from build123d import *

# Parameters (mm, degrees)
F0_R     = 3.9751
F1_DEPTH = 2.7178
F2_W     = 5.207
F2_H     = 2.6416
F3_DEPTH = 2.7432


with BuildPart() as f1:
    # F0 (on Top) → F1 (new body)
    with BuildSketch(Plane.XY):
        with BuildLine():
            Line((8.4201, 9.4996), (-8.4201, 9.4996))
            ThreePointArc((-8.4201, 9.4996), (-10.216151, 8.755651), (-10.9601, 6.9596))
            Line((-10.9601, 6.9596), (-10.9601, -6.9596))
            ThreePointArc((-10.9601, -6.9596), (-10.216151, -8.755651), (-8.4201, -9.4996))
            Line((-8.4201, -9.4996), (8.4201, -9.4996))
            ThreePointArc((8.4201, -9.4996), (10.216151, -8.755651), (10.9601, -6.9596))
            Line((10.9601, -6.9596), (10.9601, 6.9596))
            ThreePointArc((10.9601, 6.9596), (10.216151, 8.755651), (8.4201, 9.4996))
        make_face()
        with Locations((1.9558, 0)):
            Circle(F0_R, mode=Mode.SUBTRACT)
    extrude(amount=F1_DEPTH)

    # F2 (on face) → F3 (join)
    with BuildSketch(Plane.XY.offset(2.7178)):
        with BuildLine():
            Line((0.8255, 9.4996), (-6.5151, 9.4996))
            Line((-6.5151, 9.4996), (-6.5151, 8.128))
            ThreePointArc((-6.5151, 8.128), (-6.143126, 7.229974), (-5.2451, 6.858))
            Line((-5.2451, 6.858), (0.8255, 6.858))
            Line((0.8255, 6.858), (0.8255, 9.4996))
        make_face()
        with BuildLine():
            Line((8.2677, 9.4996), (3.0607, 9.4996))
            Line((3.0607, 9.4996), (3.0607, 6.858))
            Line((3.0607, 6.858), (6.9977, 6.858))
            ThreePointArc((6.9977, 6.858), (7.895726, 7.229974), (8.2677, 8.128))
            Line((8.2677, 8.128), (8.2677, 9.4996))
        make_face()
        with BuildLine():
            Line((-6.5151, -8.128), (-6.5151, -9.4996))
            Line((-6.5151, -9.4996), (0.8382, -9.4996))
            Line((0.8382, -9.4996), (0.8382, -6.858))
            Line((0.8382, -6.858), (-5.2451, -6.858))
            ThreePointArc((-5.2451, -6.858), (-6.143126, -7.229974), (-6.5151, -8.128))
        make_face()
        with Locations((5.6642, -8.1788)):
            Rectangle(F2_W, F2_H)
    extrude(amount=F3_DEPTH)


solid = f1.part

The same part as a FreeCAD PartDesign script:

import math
import FreeCAD as App
import Part
import Sketcher
Q = App.Units.Quantity

doc = App.newDocument("Part")
body = doc.addObject("PartDesign::Body", "Body")

sketch1 = body.newObject("Sketcher::SketchObject", "Sketch")
sketch1.AttachmentSupport = (doc.getObject("XY_Plane"), [""])
sketch1.MapMode = "FlatFace"
sketch1.addGeometry(Part.LineSegment(App.Vector(8.4, 9.5, 0), App.Vector(-8.4, 9.5, 0)), False)
sketch1.addGeometry(Part.ArcOfCircle(Part.Circle(App.Vector(-8.4, 7, 0), App.Vector(0, 0, 1), 2.5), math.radians(90), math.radians(180)), False)
sketch1.addGeometry(Part.LineSegment(App.Vector(-11, 7, 0), App.Vector(-11, -7, 0)), False)
sketch1.addGeometry(Part.ArcOfCircle(Part.Circle(App.Vector(-8.4, -7, 0), App.Vector(0, 0, 1), 2.5), math.radians(-180), math.radians(-90)), False)
sketch1.addGeometry(Part.LineSegment(App.Vector(-8.4, -9.5, 0), App.Vector(8.4, -9.5, 0)), False)
sketch1.addGeometry(Part.ArcOfCircle(Part.Circle(App.Vector(8.4, -7, 0), App.Vector(0, 0, 1), 2.5), math.radians(-90), math.radians(0)), False)
sketch1.addGeometry(Part.LineSegment(App.Vector(11, -7, 0), App.Vector(11, 7, 0)), False)
sketch1.addGeometry(Part.ArcOfCircle(Part.Circle(App.Vector(8.4, 7, 0), App.Vector(0, 0, 1), 2.5), math.radians(0), math.radians(90)), False)
sketch1.addGeometry(Part.Circle(App.Vector(2, 0, 0), App.Vector(0, 0, 1), 4), False)
sketch1.addConstraint(Sketcher.Constraint("Tangent", 0, 2, 1, 1))
sketch1.addConstraint(Sketcher.Constraint("Tangent", 1, 2, 2, 1))
sketch1.addConstraint(Sketcher.Constraint("Tangent", 2, 2, 3, 1))
sketch1.addConstraint(Sketcher.Constraint("Tangent", 3, 2, 4, 1))
sketch1.addConstraint(Sketcher.Constraint("Tangent", 4, 2, 5, 1))
sketch1.addConstraint(Sketcher.Constraint("Tangent", 5, 2, 6, 1))
sketch1.addConstraint(Sketcher.Constraint("Tangent", 6, 2, 7, 1))
sketch1.addConstraint(Sketcher.Constraint("Tangent", 7, 2, 0, 1))
sketch1.addConstraint(Sketcher.Constraint("Horizontal", 0))
sketch1.addConstraint(Sketcher.Constraint("Vertical", 2))
sketch1.addConstraint(Sketcher.Constraint("Horizontal", 4))
sketch1.addConstraint(Sketcher.Constraint("Vertical", 6))
sketch1.addConstraint(Sketcher.Constraint("Equal", 1, 3))
sketch1.addConstraint(Sketcher.Constraint("Equal", 3, 5))
sketch1.addConstraint(Sketcher.Constraint("Equal", 5, 7))
sketch1.addConstraint(Sketcher.Constraint("Symmetric", 1, 3, 5, 3, -1, 1))
sketch1.addConstraint(Sketcher.Constraint("PointOnObject", 8, 3, -1))
sketch1.addConstraint(Sketcher.Constraint("Radius", 1, Q("0.1 in")))
sketch1.addConstraint(Sketcher.Constraint("Diameter", 8, Q("0.313 in")))
sketch1.addConstraint(Sketcher.Constraint("DistanceX", 0, 2, 0, 1, Q("0.663 in")))
sketch1.addConstraint(Sketcher.Constraint("DistanceY", 2, 2, 2, 1, Q("0.548 in")))
sketch1.addConstraint(Sketcher.Constraint("DistanceX", -1, 1, 8, 3, Q("0.077 in")))
pad1 = body.newObject("PartDesign::Pad", "Pad")
pad1.Profile = sketch1
pad1.Length = Q("0.107 in")

sketch2 = body.newObject("Sketcher::SketchObject", "Sketch001")
sketch2.AttachmentSupport = (doc.getObject("XY_Plane"), [""])
sketch2.MapMode = "FlatFace"
sketch2.AttachmentOffset = App.Placement(App.Vector(0, 0, 0.107 * 25.4), App.Rotation())
sketch2.addGeometry(Part.LineSegment(App.Vector(0.8, 9.5, 0), App.Vector(-6.5, 9.5, 0)), False)
sketch2.addGeometry(Part.LineSegment(App.Vector(-6.5, 9.5, 0), App.Vector(-6.5, 8.1, 0)), False)
sketch2.addGeometry(Part.ArcOfCircle(Part.Circle(App.Vector(-5.2, 8.1, 0), App.Vector(0, 0, 1), 1.3), math.radians(180), math.radians(270)), False)
sketch2.addGeometry(Part.LineSegment(App.Vector(-5.2, 6.9, 0), App.Vector(0.8, 6.9, 0)), False)
sketch2.addGeometry(Part.LineSegment(App.Vector(0.8, 6.9, 0), App.Vector(0.8, 9.5, 0)), False)
sketch2.addGeometry(Part.LineSegment(App.Vector(8.3, 9.5, 0), App.Vector(3.1, 9.5, 0)), False)
sketch2.addGeometry(Part.LineSegment(App.Vector(3.1, 9.5, 0), App.Vector(3.1, 6.9, 0)), False)
sketch2.addGeometry(Part.LineSegment(App.Vector(3.1, 6.9, 0), App.Vector(7, 6.9, 0)), False)
sketch2.addGeometry(Part.ArcOfCircle(Part.Circle(App.Vector(7, 8.1, 0), App.Vector(0, 0, 1), 1.3), math.radians(-90), math.radians(0)), False)
sketch2.addGeometry(Part.LineSegment(App.Vector(8.3, 8.1, 0), App.Vector(8.3, 9.5, 0)), False)
sketch2.addGeometry(Part.LineSegment(App.Vector(-6.5, -8.1, 0), App.Vector(-6.5, -9.5, 0)), False)
sketch2.addGeometry(Part.LineSegment(App.Vector(-6.5, -9.5, 0), App.Vector(0.8, -9.5, 0)), False)
sketch2.addGeometry(Part.LineSegment(App.Vector(0.8, -9.5, 0), App.Vector(0.8, -6.9, 0)), False)
sketch2.addGeometry(Part.LineSegment(App.Vector(0.8, -6.9, 0), App.Vector(-5.2, -6.9, 0)), False)
sketch2.addGeometry(Part.ArcOfCircle(Part.Circle(App.Vector(-5.2, -8.1, 0), App.Vector(0, 0, 1), 1.3), math.radians(90), math.radians(180)), False)
sketch2.addGeometry(Part.LineSegment(App.Vector(3.1, -6.9, 0), App.Vector(3.1, -9.5, 0)), False)
sketch2.addGeometry(Part.LineSegment(App.Vector(3.1, -9.5, 0), App.Vector(8.3, -9.5, 0)), False)
sketch2.addGeometry(Part.LineSegment(App.Vector(8.3, -9.5, 0), App.Vector(8.3, -6.9, 0)), False)
sketch2.addGeometry(Part.LineSegment(App.Vector(8.3, -6.9, 0), App.Vector(3.1, -6.9, 0)), False)
sketch2.addConstraint(Sketcher.Constraint("Coincident", 0, 2, 1, 1))
sketch2.addConstraint(Sketcher.Constraint("Tangent", 1, 2, 2, 1))
sketch2.addConstraint(Sketcher.Constraint("Tangent", 2, 2, 3, 1))
sketch2.addConstraint(Sketcher.Constraint("Coincident", 3, 2, 4, 1))
sketch2.addConstraint(Sketcher.Constraint("Coincident", 4, 2, 0, 1))
sketch2.addConstraint(Sketcher.Constraint("Coincident", 5, 2, 6, 1))
sketch2.addConstraint(Sketcher.Constraint("Coincident", 6, 2, 7, 1))
sketch2.addConstraint(Sketcher.Constraint("Tangent", 7, 2, 8, 1))
sketch2.addConstraint(Sketcher.Constraint("Tangent", 8, 2, 9, 1))
sketch2.addConstraint(Sketcher.Constraint("Coincident", 9, 2, 5, 1))
sketch2.addConstraint(Sketcher.Constraint("Coincident", 10, 2, 11, 1))
sketch2.addConstraint(Sketcher.Constraint("Coincident", 11, 2, 12, 1))
sketch2.addConstraint(Sketcher.Constraint("Coincident", 12, 2, 13, 1))
sketch2.addConstraint(Sketcher.Constraint("Tangent", 13, 2, 14, 1))
sketch2.addConstraint(Sketcher.Constraint("Tangent", 14, 2, 10, 1))
sketch2.addConstraint(Sketcher.Constraint("Coincident", 15, 2, 16, 1))
sketch2.addConstraint(Sketcher.Constraint("Coincident", 16, 2, 17, 1))
sketch2.addConstraint(Sketcher.Constraint("Coincident", 17, 2, 18, 1))
sketch2.addConstraint(Sketcher.Constraint("Coincident", 18, 2, 15, 1))
sketch2.addConstraint(Sketcher.Constraint("Horizontal", 0))
sketch2.addConstraint(Sketcher.Constraint("Vertical", 1))
sketch2.addConstraint(Sketcher.Constraint("Horizontal", 3))
sketch2.addConstraint(Sketcher.Constraint("Vertical", 4))
sketch2.addConstraint(Sketcher.Constraint("Horizontal", 5))
sketch2.addConstraint(Sketcher.Constraint("Vertical", 6))
sketch2.addConstraint(Sketcher.Constraint("Horizontal", 7))
sketch2.addConstraint(Sketcher.Constraint("Vertical", 9))
sketch2.addConstraint(Sketcher.Constraint("Vertical", 10))
sketch2.addConstraint(Sketcher.Constraint("Horizontal", 11))
sketch2.addConstraint(Sketcher.Constraint("Vertical", 12))
sketch2.addConstraint(Sketcher.Constraint("Horizontal", 13))
sketch2.addConstraint(Sketcher.Constraint("Vertical", 15))
sketch2.addConstraint(Sketcher.Constraint("Horizontal", 16))
sketch2.addConstraint(Sketcher.Constraint("Vertical", 17))
sketch2.addConstraint(Sketcher.Constraint("Horizontal", 18))
sketch2.addConstraint(Sketcher.Constraint("Equal", 2, 8))
sketch2.addConstraint(Sketcher.Constraint("Equal", 8, 14))
sketch2.addConstraint(Sketcher.Constraint("Symmetric", 2, 3, 14, 3, -1))
sketch2.addConstraint(Sketcher.Constraint("Symmetric", 5, 2, 15, 2, -1))
sketch2.addConstraint(Sketcher.Constraint("Horizontal", 2, 3, 8, 3))
sketch2.addConstraint(Sketcher.Constraint("Horizontal", 4, 2, 5, 2))
sketch2.addConstraint(Sketcher.Constraint("Horizontal", 11, 2, 15, 2))
sketch2.addConstraint(Sketcher.Constraint("Horizontal", 13, 2, 17, 2))
sketch2.addConstraint(Sketcher.Constraint("Vertical", 9, 2, 16, 2))
sketch2.addConstraint(Sketcher.Constraint("Radius", 2, Q("0.0499999 in")))
sketch2.addConstraint(Sketcher.Constraint("DistanceX", 0, 2, 0, 1, Q("0.289 in")))
sketch2.addConstraint(Sketcher.Constraint("DistanceX", 5, 2, 5, 1, Q("0.205 in")))
sketch2.addConstraint(Sketcher.Constraint("DistanceY", 1, 2, 1, 1, Q("0.054 in")))
sketch2.addConstraint(Sketcher.Constraint("DistanceY", -1, 1, 2, 3, Q("0.3199999 in")))
sketch2.addConstraint(Sketcher.Constraint("DistanceX", 11, 1, 11, 2, Q("0.2895 in")))
sketch2.addConstraint(Sketcher.Constraint("DistanceX", -1, 1, 11, 2, Q("0.033 in")))
sketch2.addConstraint(Sketcher.Constraint("DistanceX", 2, 3, 8, 3, Q("0.4820001 in")))
pad2 = body.newObject("PartDesign::Pad", "Pad001")
pad2.Profile = sketch2
pad2.Length = Q("0.108 in")

doc.recompute()
